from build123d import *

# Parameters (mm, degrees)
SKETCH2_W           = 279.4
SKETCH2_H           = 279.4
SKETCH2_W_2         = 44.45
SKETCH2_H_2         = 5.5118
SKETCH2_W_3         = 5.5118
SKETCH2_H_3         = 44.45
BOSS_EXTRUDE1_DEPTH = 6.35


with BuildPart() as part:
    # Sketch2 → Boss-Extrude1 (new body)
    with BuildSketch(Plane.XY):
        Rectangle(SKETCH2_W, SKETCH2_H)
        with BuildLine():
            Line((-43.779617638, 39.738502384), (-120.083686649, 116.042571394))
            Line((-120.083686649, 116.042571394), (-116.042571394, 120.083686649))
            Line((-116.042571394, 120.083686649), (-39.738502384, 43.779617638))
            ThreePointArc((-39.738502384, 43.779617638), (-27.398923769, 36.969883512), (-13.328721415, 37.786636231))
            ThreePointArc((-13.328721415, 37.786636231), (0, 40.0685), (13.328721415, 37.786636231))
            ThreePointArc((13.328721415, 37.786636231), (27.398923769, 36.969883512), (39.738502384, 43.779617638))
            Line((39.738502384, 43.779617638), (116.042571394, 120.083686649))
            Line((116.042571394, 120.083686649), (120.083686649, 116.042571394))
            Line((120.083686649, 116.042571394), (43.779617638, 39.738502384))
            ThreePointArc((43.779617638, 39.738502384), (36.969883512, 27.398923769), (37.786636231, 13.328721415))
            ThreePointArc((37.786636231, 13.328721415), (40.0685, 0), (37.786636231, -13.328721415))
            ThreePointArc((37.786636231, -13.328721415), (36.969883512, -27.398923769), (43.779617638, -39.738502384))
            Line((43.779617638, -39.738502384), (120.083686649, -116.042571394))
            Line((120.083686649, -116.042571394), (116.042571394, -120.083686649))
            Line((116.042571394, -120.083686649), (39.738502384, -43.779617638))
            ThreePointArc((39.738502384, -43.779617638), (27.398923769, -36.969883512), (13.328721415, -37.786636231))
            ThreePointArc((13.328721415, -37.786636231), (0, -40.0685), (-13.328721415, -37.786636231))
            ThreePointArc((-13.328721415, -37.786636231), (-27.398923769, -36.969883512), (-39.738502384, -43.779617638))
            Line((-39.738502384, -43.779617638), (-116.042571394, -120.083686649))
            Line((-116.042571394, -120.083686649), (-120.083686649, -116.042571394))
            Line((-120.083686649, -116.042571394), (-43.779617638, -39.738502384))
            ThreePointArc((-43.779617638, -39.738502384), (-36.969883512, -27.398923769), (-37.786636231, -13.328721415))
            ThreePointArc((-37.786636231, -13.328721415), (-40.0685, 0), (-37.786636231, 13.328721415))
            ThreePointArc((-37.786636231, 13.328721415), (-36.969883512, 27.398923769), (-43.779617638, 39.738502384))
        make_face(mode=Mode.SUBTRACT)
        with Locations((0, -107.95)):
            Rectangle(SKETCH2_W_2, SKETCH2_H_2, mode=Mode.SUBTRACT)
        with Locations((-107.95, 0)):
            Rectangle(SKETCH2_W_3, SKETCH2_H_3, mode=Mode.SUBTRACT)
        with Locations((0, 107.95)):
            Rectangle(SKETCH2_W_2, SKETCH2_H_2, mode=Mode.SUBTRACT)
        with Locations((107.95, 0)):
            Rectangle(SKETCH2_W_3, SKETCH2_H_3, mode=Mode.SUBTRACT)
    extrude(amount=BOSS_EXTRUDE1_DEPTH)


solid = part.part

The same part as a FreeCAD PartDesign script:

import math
import FreeCAD as App
import Part
import Sketcher

V = App.Vector
Q = App.Units.Quantity

doc = App.newDocument("Part")
params = doc.addObject("Spreadsheet::Sheet", "Params")
for row, (alias, value) in enumerate([
    ("sketch1_radius", "1 in"),
    ("sketch1_width", "11 in"),
    ("sketch1_width2", "1.75 in"),
    ("sketch1_width3", "0.217 in"),
    ("sketch1_length", "0.225 in"),
    ("pad1_length", "0.25 in"),
], start=1):
    params.set(f"A{row}", alias)
    params.set(f"B{row}", "=" + value)
    params.setAlias(f"B{row}", alias)

body = doc.addObject("PartDesign::Body", "Body")

# Sketch on XY plane
sketch1 = body.newObject("Sketcher::SketchObject", "Sketch")
sketch1.AttachmentSupport = (doc.getObject("XY_Plane"), [""])
sketch1.MapMode = "FlatFace"
sketch1.addGeometry(Part.LineSegment(V(-139.7, 139.7, 0), V(-139.7, -139.7, 0)), False)
sketch1.addGeometry(Part.LineSegment(V(-139.7, -139.7, 0), V(139.7, -139.7, 0)), False)
sketch1.addGeometry(Part.LineSegment(V(139.7, -139.7, 0), V(139.7, 139.7, 0)), False)
sketch1.addGeometry(Part.LineSegment(V(139.7, 139.7, 0), V(-139.7, 139.7, 0)), False)
sketch1.addGeometry(Part.LineSegment(V(22.225, -110.7059, 0), V(-22.225, -110.7059, 0)), False)
sketch1.addGeometry(Part.LineSegment(V(-22.225, -110.7059, 0), V(-22.225, -105.1941, 0)), False)
sketch1.addGeometry(Part.LineSegment(V(-22.225, -105.1941, 0), V(22.225, -105.1941, 0)), False)
sketch1.addGeometry(Part.LineSegment(V(22.225, -105.1941, 0), V(22.225, -110.7059, 0)), False)
sketch1.addGeometry(Part.LineSegment(V(-105.1941, -22.225, 0), V(-110.7059, -22.225, 0)), False)
sketch1.addGeometry(Part.LineSegment(V(-110.7059, -22.225, 0), V(-110.7059, 22.225, 0)), False)
sketch1.addGeometry(Part.LineSegment(V(-110.7059, 22.225, 0), V(-105.1941, 22.225, 0)), False)
sketch1.addGeometry(Part.LineSegment(V(-105.1941, 22.225, 0), V(-105.1941, -22.225, 0)), False)
sketch1.addGeometry(Part.ArcOfCircle(Part.Circle(V(-61.74013, 21.77799, 0), V(0, 0, 1), 25.4), math.radians(-19.4296), math.radians(45)), False)
sketch1.addGeometry(Part.LineSegment(V(-43.779618, 39.738502, 0), V(-120.083687, 116.042571, 0)), False)
sketch1.addGeometry(Part.LineSegment(V(-120.083687, 116.042571, 0), V(-116.042571, 120.083687, 0)), False)
sketch1.addGeometry(Part.LineSegment(V(-116.042571, 120.083687, 0), V(-39.738502, 43.779618, 0)), False)
sketch1.addGeometry(Part.ArcOfCircle(Part.Circle(V(-21.77799, 61.74013, 0), V(0, 0, 1), 25.4), math.radians(-135), math.radians(-70.5704)), False)
sketch1.addGeometry(Part.ArcOfCircle(Part.Circle(V(0, 0, 0), V(0, 0, 1), 40.0685), math.radians(70.5704), math.radians(109.4296)), False)
sketch1.addGeometry(Part.ArcOfCircle(Part.Circle(V(21.77799, 61.74013, 0), V(0, 0, 1), 25.4), math.radians(-109.4296), math.radians(-45)), False)
sketch1.addGeometry(Part.LineSegment(V(39.738502, 43.779618, 0), V(116.042571, 120.083687, 0)), False)
sketch1.addGeometry(Part.LineSegment(V(116.042571, 120.083687, 0), V(120.083687, 116.042571, 0)), False)
sketch1.addGeometry(Part.LineSegment(V(120.083687, 116.042571, 0), V(43.779618, 39.738502, 0)), False)
sketch1.addGeometry(Part.ArcOfCircle(Part.Circle(V(61.74013, 21.77799, 0), V(0, 0, 1), 25.4), math.radians(135), math.radians(199.4296)), False)
sketch1.addGeometry(Part.ArcOfCircle(Part.Circle(V(0, 0, 0), V(0, 0, 1), 40.0685), math.radians(-19.4296), math.radians(19.4296)), False)
sketch1.addGeometry(Part.ArcOfCircle(Part.Circle(V(61.74013, -21.77799, 0), V(0, 0, 1), 25.4), math.radians(160.5704), math.radians(225)), False)
sketch1.addGeometry(Part.LineSegment(V(43.779618, -39.738502, 0), V(120.083687, -116.042571, 0)), False)
sketch1.addGeometry(Part.LineSegment(V(120.083687, -116.042571, 0), V(116.042571, -120.083687, 0)), False)
sketch1.addGeometry(Part.LineSegment(V(116.042571, -120.083687, 0), V(39.738502, -43.779618, 0)), False)
sketch1.addGeometry(Part.ArcOfCircle(Part.Circle(V(21.77799, -61.74013, 0), V(0, 0, 1), 25.4), math.radians(45), math.radians(109.4296)), False)
sketch1.addGeometry(Part.ArcOfCircle(Part.Circle(V(0, 0, 0), V(0, 0, 1), 40.0685), math.radians(-109.4296), math.radians(-70.5704)), False)
sketch1.addGeometry(Part.ArcOfCircle(Part.Circle(V(-21.77799, -61.74013, 0), V(0, 0, 1), 25.4), math.radians(70.5704), math.radians(135)), False)
sketch1.addGeometry(Part.LineSegment(V(-39.738502, -43.779618, 0), V(-116.042571, -120.083687, 0)), False)
sketch1.addGeometry(Part.LineSegment(V(-116.042571, -120.083687, 0), V(-120.083687, -116.042571, 0)), False)
sketch1.addGeometry(Part.LineSegment(V(-120.083687, -116.042571, 0), V(-43.779618, -39.738502, 0)), False)
sketch1.addGeometry(Part.ArcOfCircle(Part.Circle(V(-61.74013, -21.77799, 0), V(0, 0, 1), 25.4), math.radians(-45), math.radians(19.4296)), False)
sketch1.addGeometry(Part.ArcOfCircle(Part.Circle(V(0, 0, 0), V(0, 0, 1), 40.0685), math.radians(160.5704), math.radians(199.4296)), False)
sketch1.addGeometry(Part.LineSegment(V(110.7059, -22.225, 0), V(105.1941, -22.225, 0)), False)
sketch1.addGeometry(Part.LineSegment(V(105.1941, -22.225, 0), V(105.1941, 22.225, 0)), False)
sketch1.addGeometry(Part.LineSegment(V(105.1941, 22.225, 0), V(110.7059, 22.225, 0)), False)
sketch1.addGeometry(Part.LineSegment(V(110.7059, 22.225, 0), V(110.7059, -22.225, 0)), False)
sketch1.addGeometry(Part.LineSegment(V(22.225, 105.1941, 0), V(-22.225, 105.1941, 0)), False)
sketch1.addGeometry(Part.LineSegment(V(-22.225, 105.1941, 0), V(-22.225, 110.7059, 0)), False)
sketch1.addGeometry(Part.LineSegment(V(-22.225, 110.7059, 0), V(22.225, 110.7059, 0)), False)
sketch1.addGeometry(Part.LineSegment(V(22.225, 110.7059, 0), V(22.225, 105.1941, 0)), False)
sketch1.addConstraint(Sketcher.Constraint("Coincident", 0, 2, 1, 1))
sketch1.addConstraint(Sketcher.Constraint("Coincident", 1, 2, 2, 1))
sketch1.addConstraint(Sketcher.Constraint("Coincident", 2, 2, 3, 1))
sketch1.addConstraint(Sketcher.Constraint("Coincident", 3, 2, 0, 1))
sketch1.addConstraint(Sketcher.Constraint("Coincident", 4, 2, 5, 1))
sketch1.addConstraint(Sketcher.Constraint("Coincident", 5, 2, 6, 1))
sketch1.addConstraint(Sketcher.Constraint("Coincident", 6, 2, 7, 1))
sketch1.addConstraint(Sketcher.Constraint("Coincident", 7, 2, 4, 1))
sketch1.addConstraint(Sketcher.Constraint("Coincident", 8, 2, 9, 1))
sketch1.addConstraint(Sketcher.Constraint("Coincident", 9, 2, 10, 1))
sketch1.addConstraint(Sketcher.Constraint("Coincident", 10, 2, 11, 1))
sketch1.addConstraint(Sketcher.Constraint("Coincident", 11, 2, 8, 1))
sketch1.addConstraint(Sketcher.Constraint("Tangent", 12, 2, 13, 1))
sketch1.addConstraint(Sketcher.Constraint("Coincident", 13, 2, 14, 1))
sketch1.addConstraint(Sketcher.Constraint("Coincident", 14, 2, 15, 1))
sketch1.addConstraint(Sketcher.Constraint("Tangent", 15, 2, 16, 1))
sketch1.addConstraint(Sketcher.Constraint("Tangent", 16, 2, 17, 2))
sketch1.addConstraint(Sketcher.Constraint("Tangent", 17, 1, 18, 1))
sketch1.addConstraint(Sketcher.Constraint("Tangent", 18, 2, 19, 1))
sketch1.addConstraint(Sketcher.Constraint("Coincident", 19, 2, 20, 1))
sketch1.addConstraint(Sketcher.Constraint("Coincident", 20, 2, 21, 1))
sketch1.addConstraint(Sketcher.Constraint("Tangent", 21, 2, 22, 1))
sketch1.addConstraint(Sketcher.Constraint("Tangent", 22, 2, 23, 2))
sketch1.addConstraint(Sketcher.Constraint("Tangent", 23, 1, 24, 1))
sketch1.addConstraint(Sketcher.Constraint("Tangent", 24, 2, 25, 1))
sketch1.addConstraint(Sketcher.Constraint("Coincident", 25, 2, 26, 1))
sketch1.addConstraint(Sketcher.Constraint("Coincident", 26, 2, 27, 1))
sketch1.addConstraint(Sketcher.Constraint("Tangent", 27, 2, 28, 1))
sketch1.addConstraint(Sketcher.Constraint("Tangent", 28, 2, 29, 2))
sketch1.addConstraint(Sketcher.Constraint("Tangent", 29, 1, 30, 1))
sketch1.addConstraint(Sketcher.Constraint("Tangent", 30, 2, 31, 1))
sketch1.addConstraint(Sketcher.Constraint("Coincident", 31, 2, 32, 1))
sketch1.addConstraint(Sketcher.Constraint("Coincident", 32, 2, 33, 1))
sketch1.addConstraint(Sketcher.Constraint("Tangent", 33, 2, 34, 1))
sketch1.addConstraint(Sketcher.Constraint("Tangent", 34, 2, 35, 2))
sketch1.addConstraint(Sketcher.Constraint("Tangent", 35, 1, 12, 1))
sketch1.addConstraint(Sketcher.Constraint("Coincident", 36, 2, 37, 1))
sketch1.addConstraint(Sketcher.Constraint("Coincident", 37, 2, 38, 1))
sketch1.addConstraint(Sketcher.Constraint("Coincident", 38, 2, 39, 1))
sketch1.addConstraint(Sketcher.Constraint("Coincident", 39, 2, 36, 1))
sketch1.addConstraint(Sketcher.Constraint("Coincident", 40, 2, 41, 1))
sketch1.addConstraint(Sketcher.Constraint("Coincident", 41, 2, 42, 1))
sketch1.addConstraint(Sketcher.Constraint("Coincident", 42, 2, 43, 1))
sketch1.addConstraint(Sketcher.Constraint("Coincident", 43, 2, 40, 1))
sketch1.addConstraint(Sketcher.Constraint("Vertical", 0))
sketch1.addConstraint(Sketcher.Constraint("Horizontal", 1))
sketch1.addConstraint(Sketcher.Constraint("Vertical", 2))
sketch1.addConstraint(Sketcher.Constraint("Horizontal", 3))
sketch1.addConstraint(Sketcher.Constraint("Horizontal", 4))
sketch1.addConstraint(Sketcher.Constraint("Vertical", 5))
sketch1.addConstraint(Sketcher.Constraint("Horizontal", 6))
sketch1.addConstraint(Sketcher.Constraint("Vertical", 7))
sketch1.addConstraint(Sketcher.Constraint("Horizontal", 8))
sketch1.addConstraint(Sketcher.Constraint("Vertical", 9))
sketch1.addConstraint(Sketcher.Constraint("Horizontal", 10))
sketch1.addConstraint(Sketcher.Constraint("Vertical", 11))
sketch1.addConstraint(Sketcher.Constraint("Horizontal", 36))
sketch1.addConstraint(Sketcher.Constraint("Vertical", 37))
sketch1.addConstraint(Sketcher.Constraint("Horizontal", 38))
sketch1.addConstraint(Sketcher.Constraint("Vertical", 39))
sketch1.addConstraint(Sketcher.Constraint("Horizontal", 40))
sketch1.addConstraint(Sketcher.Constraint("Vertical", 41))
sketch1.addConstraint(Sketcher.Constraint("Horizontal", 42))
sketch1.addConstraint(Sketcher.Constraint("Vertical", 43))
sketch1.addConstraint(Sketcher.Constraint("Coincident", 17, 3, -1, 1))
sketch1.addConstraint(Sketcher.Constraint("Coincident", 23, 3, -1, 1))
sketch1.addConstraint(Sketcher.Constraint("Coincident", 29, 3, -1, 1))
sketch1.addConstraint(Sketcher.Constraint("Coincident", 35, 3, -1, 1))
sketch1.addConstraint(Sketcher.Constraint("Equal", 12, 16))
sketch1.addConstraint(Sketcher.Constraint("Equal", 16, 18))
sketch1.addConstraint(Sketcher.Constraint("Equal", 18, 22))
sketch1.addConstraint(Sketcher.Constraint("Equal", 17, 23))
sketch1.addConstraint(Sketcher.Constraint("Equal", 22, 24))
sketch1.addConstraint(Sketcher.Constraint("Equal", 24, 28))
sketch1.addConstraint(Sketcher.Constraint("Equal", 23, 29))
sketch1.addConstraint(Sketcher.Constraint("Equal", 28, 30))
sketch1.addConstraint(Sketcher.Constraint("Equal", 30, 34))
sketch1.addConstraint(Sketcher.Constraint("Equal", 29, 35))
sketch1.addConstraint(Sketcher.Constraint("Symmetric", 0, 2, 2, 2, -1, 1))
sketch1.addConstraint(Sketcher.Constraint("Symmetric", 12, 2, 24, 2, -1, 1))
sketch1.addConstraint(Sketcher.Constraint("Symmetric", 14, 2, 26, 2, -1, 1))
sketch1.addConstraint(Sketcher.Constraint("Symmetric", 18, 2, 30, 2, -1, 1))
sketch1.addConstraint(Sketcher.Constraint("Symmetric", 20, 2, 32, 2, -1, 1))
sketch1.addConstraint(Sketcher.Constraint("Symmetric", 10, 2, 36, 2, -1, 1))
sketch1.addConstraint(Sketcher.Constraint("Symmetric", 8, 2, 38, 2, -1, 1))
sketch1.addConstraint(Sketcher.Constraint("Symmetric", 6, 2, 40, 2, -1, 1))
sketch1.addConstraint(Sketcher.Constraint("Symmetric", 4, 2, 42, 2, -1, 1))
sketch1.addConstraint(Sketcher.Constraint("Symmetric", 15, 2, 18, 2, -2))
sketch1.addConstraint(Sketcher.Constraint("Symmetric", 13, 2, 20, 2, -2))
sketch1.addConstraint(Sketcher.Constraint("Perpendicular", 13, 14))
sketch1.addConstraint(Sketcher.Constraint("Perpendicular", 14, 15))
sketch1.addConstraint(Sketcher.Constraint("Perpendicular", 15, 19))
sketch1.addConstraint(Sketcher.Constraint("Perpendicular", 19, 20))
sketch1.addConstraint(Sketcher.Constraint("Perpendicular", 20, 21))
sketch1.addConstraint(Sketcher.Constraint("Perpendicular", 25, 26))
sketch1.addConstraint(Sketcher.Constraint("Perpendicular", 26, 27))
sketch1.addConstraint(Sketcher.Constraint("Perpendicular", 31, 32))
sketch1.addConstraint(Sketcher.Constraint("Perpendicular", 32, 33))
sketch1.addConstraint(Sketcher.Constraint("Horizontal", 11, 2, 36, 2))
sketch1.addConstraint(Sketcher.Constraint("Vertical", 5, 2, 40, 2))
sketch1.addConstraint(Sketcher.Constraint("Equal", 3, 0))
sketch1.addConstraint(Sketcher.Constraint("Equal", 38, 5))
sketch1.addConstraint(Sketcher.Constraint("Equal", 42, 9))
sketch1.addConstraint(Sketcher.Constraint("Equal", 13, 15))
sketch1.addConstraint(Sketcher.Constraint("Radius", 12, Q("1 in")))
sketch1.addConstraint(Sketcher.Constraint("DistanceX", 1, 1, 1, 2, Q("11 in")))
sketch1.addConstraint(Sketcher.Constraint("DistanceX", 4, 2, 4, 1, Q("1.75 in")))
sketch1.addConstraint(Sketcher.Constraint("Radius", 17, Q("1.5775 in")))
sketch1.addConstraint(Sketcher.Constraint("DistanceX", 8, 2, 8, 1, Q("0.217 in")))
sketch1.addConstraint(Sketcher.Constraint("Distance", 14, Q("0.225 in")))
sketch1.addConstraint(Sketcher.Constraint("DistanceY", 4, 2, -1, 1, Q("4.3585 in")))
sketch1.addConstraint(Sketcher.Constraint("DistanceX", 8, 2, -1, 1, Q("4.3585 in")))
sketch1.addConstraint(Sketcher.Constraint("Distance", 13, 107.910249))
sketch1.setExpression("Constraints[104]", "Params.sketch1_radius")
sketch1.setExpression("Constraints[105]", "Params.sketch1_width")
sketch1.setExpression("Constraints[106]", "Params.sketch1_width2")
sketch1.setExpression("Constraints[108]", "Params.sketch1_width3")
sketch1.setExpression("Constraints[109]", "Params.sketch1_length")
pad1 = body.newObject("PartDesign::Pad", "Pad")
pad1.Profile = sketch1
pad1.setExpression("Length", "Params.pad1_length")

doc.recompute()
